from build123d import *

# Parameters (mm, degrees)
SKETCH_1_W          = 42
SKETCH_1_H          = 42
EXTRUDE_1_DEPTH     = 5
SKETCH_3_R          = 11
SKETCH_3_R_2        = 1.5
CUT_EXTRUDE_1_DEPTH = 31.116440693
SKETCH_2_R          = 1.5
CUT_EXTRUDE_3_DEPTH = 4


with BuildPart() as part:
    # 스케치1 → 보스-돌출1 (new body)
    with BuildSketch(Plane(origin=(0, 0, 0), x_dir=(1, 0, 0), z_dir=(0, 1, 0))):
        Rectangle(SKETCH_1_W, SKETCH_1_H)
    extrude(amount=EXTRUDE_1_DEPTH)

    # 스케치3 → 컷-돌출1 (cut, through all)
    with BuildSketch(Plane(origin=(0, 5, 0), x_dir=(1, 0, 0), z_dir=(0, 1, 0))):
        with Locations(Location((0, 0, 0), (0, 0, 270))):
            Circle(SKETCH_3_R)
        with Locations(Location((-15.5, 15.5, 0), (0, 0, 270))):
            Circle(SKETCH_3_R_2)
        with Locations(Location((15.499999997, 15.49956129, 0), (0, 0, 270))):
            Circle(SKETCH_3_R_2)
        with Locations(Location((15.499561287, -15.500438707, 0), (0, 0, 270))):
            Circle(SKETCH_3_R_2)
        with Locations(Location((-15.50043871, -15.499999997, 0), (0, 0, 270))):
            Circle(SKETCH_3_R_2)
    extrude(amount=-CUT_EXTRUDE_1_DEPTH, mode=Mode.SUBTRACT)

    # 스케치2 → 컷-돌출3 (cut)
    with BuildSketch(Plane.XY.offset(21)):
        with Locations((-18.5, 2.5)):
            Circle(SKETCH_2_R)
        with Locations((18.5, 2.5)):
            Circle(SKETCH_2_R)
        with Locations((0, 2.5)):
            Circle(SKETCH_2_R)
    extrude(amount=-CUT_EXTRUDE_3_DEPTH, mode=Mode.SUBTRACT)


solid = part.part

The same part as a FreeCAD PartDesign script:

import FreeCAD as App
import Part
import Sketcher


def add_polygon(sketch, points):
    """Adds a closed chain of lines whose ends are joined by coincident constraints."""
    first, n = sketch.GeometryCount, len(points)
    for a, b in zip(points, points[1:] + points[:1]):
        sketch.addGeometry(Part.LineSegment(App.Vector(*a, 0), App.Vector(*b, 0)), False)
    for i in range(n):
        sketch.addConstraint(Sketcher.Constraint("Coincident", first + i, 2, first + (i + 1) % n, 1))

doc = App.newDocument("Part")
params = doc.addObject("Spreadsheet::Sheet", "Params")
for row, (alias, value) in enumerate([
    ("sketch1_width", "42 mm"),
    ("pad1_length", "5 mm"),
    ("sketch2_diameter", "22 mm"),
    ("sketch2_diameter2", "3 mm"),
    ("sketch3_diameter", "3 mm"),
    ("pocket2_length", "4 mm"),
], start=1):
    params.set(f"A{row}", alias)
    params.set(f"B{row}", "=" + value)
    params.setAlias(f"B{row}", alias)

body = doc.addObject("PartDesign::Body", "Body")

# Sketch on XZ plane
sketch1 = body.newObject("Sketcher::SketchObject", "Sketch")
sketch1.AttachmentSupport = (doc.getObject("XZ_Plane"), [""])
sketch1.MapMode = "FlatFace"
add_polygon(sketch1, [(-21, -21), (-21, 21), (21, 21), (21, -21)])  # lines 0-3
sketch1.addConstraint([
    Sketcher.Constraint("Vertical", 0),
    Sketcher.Constraint("Horizontal", 1),
    Sketcher.Constraint("Vertical", 2),
    Sketcher.Constraint("Horizontal", 3),
    Sketcher.Constraint("Symmetric", 0, 2, 2, 2, -1, 1),
    Sketcher.Constraint("Equal", 3, 0),
    Sketcher.Constraint("DistanceX", 1, 1, 1, 2, 42.0),
])
sketch1.setExpression("Constraints[10]", "Params.sketch1_width")
pad1 = body.newObject("PartDesign::Pad", "Pad")
pad1.Profile = sketch1
pad1.setExpression("Length", "Params.pad1_length")
pad1.Reversed = True

# Sketch on XZ plane
sketch2 = body.newObject("Sketcher::SketchObject", "Sketch001")
sketch2.AttachmentSupport = (doc.getObject("XZ_Plane"), [""])
sketch2.MapMode = "FlatFace"
sketch2.AttachmentOffset = App.Placement(App.Vector(0, 0, -5), App.Rotation())
sketch2.addGeometry([
    Part.Circle(App.Vector(0, 0, 0), App.Vector(0, 0, 1), 11),  # 0
    Part.Circle(App.Vector(-15.5, -15.5, 0), App.Vector(0, 0, 1), 1.5),  # 1
    Part.Circle(App.Vector(15.5, -15.5, 0), App.Vector(0, 0, 1), 1.5),  # 2
    Part.Circle(App.Vector(15.5, 15.5, 0), App.Vector(0, 0, 1), 1.5),  # 3
    Part.Circle(App.Vector(-15.5, 15.5, 0), App.Vector(0, 0, 1), 1.5),  # 4
], False)
sketch2.addConstraint([
    Sketcher.Constraint("Coincident", 0, 3, -1, 1),
    Sketcher.Constraint("Equal", 1, 2),
    Sketcher.Constraint("Equal", 2, 3),
    Sketcher.Constraint("Equal", 3, 4),
    Sketcher.Constraint("Diameter", 0, 22.0),
    Sketcher.Constraint("Diameter", 1, 3.0),
    Sketcher.Constraint("DistanceX", 1, 3, 2, 3, 31.0),
    Sketcher.Constraint("DistanceY", 2, 3, 3, 3, 31.0),
    Sketcher.Constraint("DistanceY", 1, 3, 4, 3, 31.0),
    Sketcher.Constraint("DistanceX", 4, 3, 3, 3, 31.0),
    Sketcher.Constraint("DistanceX", 1, 3, -1, 1, 15.5),
    Sketcher.Constraint("DistanceY", 1, 3, -1, 1, 15.5),
    Sketcher.Constraint("DistanceY", 2, 3, -1, 1, 15.499561),
    Sketcher.Constraint("DistanceX", -1, 1, 3, 3, 15.499561),
])
sketch2.setExpression("Constraints[4]", "Params.sketch2_diameter")
sketch2.setExpression("Constraints[5]", "Params.sketch2_diameter2")
pocket1 = body.newObject("PartDesign::Pocket", "Pocket")
pocket1.Profile = sketch2
pocket1.Type = "ThroughAll"
pocket1.Reversed = True

# Sketch on XY plane
sketch3 = body.newObject("Sketcher::SketchObject", "Sketch002")
sketch3.AttachmentSupport = (doc.getObject("XY_Plane"), [""])
sketch3.MapMode = "FlatFace"
sketch3.AttachmentOffset = App.Placement(App.Vector(0, 0, 21), App.Rotation())
sketch3.addGeometry([
    Part.Circle(App.Vector(-18.5, 2.5, 0), App.Vector(0, 0, 1), 1.5),
    Part.Circle(App.Vector(18.5, 2.5, 0), App.Vector(0, 0, 1), 1.5),
    Part.Circle(App.Vector(0, 2.5, 0), App.Vector(0, 0, 1), 1.5),
], False)
sketch3.addConstraint([
    Sketcher.Constraint("Equal", 0, 1),
    Sketcher.Constraint("Equal", 1, 2),
    Sketcher.Constraint("Symmetric", 0, 3, 1, 3, -2),
    Sketcher.Constraint("PointOnObject", 2, 3, -2),
    Sketcher.Constraint("Horizontal", 1, 3, 2, 3),
    Sketcher.Constraint("Diameter", 0, 3.0),
    Sketcher.Constraint("DistanceX", 0, 3, 1, 3, 37.0),
    Sketcher.Constraint("DistanceY", -1, 1, 0, 3, 2.5),
])
sketch3.setExpression("Constraints[5]", "Params.sketch3_diameter")
pocket2 = body.newObject("PartDesign::Pocket", "Pocket001")
pocket2.Profile = sketch3
pocket2.setExpression("Length", "Params.pocket2_length")

doc.recompute()
